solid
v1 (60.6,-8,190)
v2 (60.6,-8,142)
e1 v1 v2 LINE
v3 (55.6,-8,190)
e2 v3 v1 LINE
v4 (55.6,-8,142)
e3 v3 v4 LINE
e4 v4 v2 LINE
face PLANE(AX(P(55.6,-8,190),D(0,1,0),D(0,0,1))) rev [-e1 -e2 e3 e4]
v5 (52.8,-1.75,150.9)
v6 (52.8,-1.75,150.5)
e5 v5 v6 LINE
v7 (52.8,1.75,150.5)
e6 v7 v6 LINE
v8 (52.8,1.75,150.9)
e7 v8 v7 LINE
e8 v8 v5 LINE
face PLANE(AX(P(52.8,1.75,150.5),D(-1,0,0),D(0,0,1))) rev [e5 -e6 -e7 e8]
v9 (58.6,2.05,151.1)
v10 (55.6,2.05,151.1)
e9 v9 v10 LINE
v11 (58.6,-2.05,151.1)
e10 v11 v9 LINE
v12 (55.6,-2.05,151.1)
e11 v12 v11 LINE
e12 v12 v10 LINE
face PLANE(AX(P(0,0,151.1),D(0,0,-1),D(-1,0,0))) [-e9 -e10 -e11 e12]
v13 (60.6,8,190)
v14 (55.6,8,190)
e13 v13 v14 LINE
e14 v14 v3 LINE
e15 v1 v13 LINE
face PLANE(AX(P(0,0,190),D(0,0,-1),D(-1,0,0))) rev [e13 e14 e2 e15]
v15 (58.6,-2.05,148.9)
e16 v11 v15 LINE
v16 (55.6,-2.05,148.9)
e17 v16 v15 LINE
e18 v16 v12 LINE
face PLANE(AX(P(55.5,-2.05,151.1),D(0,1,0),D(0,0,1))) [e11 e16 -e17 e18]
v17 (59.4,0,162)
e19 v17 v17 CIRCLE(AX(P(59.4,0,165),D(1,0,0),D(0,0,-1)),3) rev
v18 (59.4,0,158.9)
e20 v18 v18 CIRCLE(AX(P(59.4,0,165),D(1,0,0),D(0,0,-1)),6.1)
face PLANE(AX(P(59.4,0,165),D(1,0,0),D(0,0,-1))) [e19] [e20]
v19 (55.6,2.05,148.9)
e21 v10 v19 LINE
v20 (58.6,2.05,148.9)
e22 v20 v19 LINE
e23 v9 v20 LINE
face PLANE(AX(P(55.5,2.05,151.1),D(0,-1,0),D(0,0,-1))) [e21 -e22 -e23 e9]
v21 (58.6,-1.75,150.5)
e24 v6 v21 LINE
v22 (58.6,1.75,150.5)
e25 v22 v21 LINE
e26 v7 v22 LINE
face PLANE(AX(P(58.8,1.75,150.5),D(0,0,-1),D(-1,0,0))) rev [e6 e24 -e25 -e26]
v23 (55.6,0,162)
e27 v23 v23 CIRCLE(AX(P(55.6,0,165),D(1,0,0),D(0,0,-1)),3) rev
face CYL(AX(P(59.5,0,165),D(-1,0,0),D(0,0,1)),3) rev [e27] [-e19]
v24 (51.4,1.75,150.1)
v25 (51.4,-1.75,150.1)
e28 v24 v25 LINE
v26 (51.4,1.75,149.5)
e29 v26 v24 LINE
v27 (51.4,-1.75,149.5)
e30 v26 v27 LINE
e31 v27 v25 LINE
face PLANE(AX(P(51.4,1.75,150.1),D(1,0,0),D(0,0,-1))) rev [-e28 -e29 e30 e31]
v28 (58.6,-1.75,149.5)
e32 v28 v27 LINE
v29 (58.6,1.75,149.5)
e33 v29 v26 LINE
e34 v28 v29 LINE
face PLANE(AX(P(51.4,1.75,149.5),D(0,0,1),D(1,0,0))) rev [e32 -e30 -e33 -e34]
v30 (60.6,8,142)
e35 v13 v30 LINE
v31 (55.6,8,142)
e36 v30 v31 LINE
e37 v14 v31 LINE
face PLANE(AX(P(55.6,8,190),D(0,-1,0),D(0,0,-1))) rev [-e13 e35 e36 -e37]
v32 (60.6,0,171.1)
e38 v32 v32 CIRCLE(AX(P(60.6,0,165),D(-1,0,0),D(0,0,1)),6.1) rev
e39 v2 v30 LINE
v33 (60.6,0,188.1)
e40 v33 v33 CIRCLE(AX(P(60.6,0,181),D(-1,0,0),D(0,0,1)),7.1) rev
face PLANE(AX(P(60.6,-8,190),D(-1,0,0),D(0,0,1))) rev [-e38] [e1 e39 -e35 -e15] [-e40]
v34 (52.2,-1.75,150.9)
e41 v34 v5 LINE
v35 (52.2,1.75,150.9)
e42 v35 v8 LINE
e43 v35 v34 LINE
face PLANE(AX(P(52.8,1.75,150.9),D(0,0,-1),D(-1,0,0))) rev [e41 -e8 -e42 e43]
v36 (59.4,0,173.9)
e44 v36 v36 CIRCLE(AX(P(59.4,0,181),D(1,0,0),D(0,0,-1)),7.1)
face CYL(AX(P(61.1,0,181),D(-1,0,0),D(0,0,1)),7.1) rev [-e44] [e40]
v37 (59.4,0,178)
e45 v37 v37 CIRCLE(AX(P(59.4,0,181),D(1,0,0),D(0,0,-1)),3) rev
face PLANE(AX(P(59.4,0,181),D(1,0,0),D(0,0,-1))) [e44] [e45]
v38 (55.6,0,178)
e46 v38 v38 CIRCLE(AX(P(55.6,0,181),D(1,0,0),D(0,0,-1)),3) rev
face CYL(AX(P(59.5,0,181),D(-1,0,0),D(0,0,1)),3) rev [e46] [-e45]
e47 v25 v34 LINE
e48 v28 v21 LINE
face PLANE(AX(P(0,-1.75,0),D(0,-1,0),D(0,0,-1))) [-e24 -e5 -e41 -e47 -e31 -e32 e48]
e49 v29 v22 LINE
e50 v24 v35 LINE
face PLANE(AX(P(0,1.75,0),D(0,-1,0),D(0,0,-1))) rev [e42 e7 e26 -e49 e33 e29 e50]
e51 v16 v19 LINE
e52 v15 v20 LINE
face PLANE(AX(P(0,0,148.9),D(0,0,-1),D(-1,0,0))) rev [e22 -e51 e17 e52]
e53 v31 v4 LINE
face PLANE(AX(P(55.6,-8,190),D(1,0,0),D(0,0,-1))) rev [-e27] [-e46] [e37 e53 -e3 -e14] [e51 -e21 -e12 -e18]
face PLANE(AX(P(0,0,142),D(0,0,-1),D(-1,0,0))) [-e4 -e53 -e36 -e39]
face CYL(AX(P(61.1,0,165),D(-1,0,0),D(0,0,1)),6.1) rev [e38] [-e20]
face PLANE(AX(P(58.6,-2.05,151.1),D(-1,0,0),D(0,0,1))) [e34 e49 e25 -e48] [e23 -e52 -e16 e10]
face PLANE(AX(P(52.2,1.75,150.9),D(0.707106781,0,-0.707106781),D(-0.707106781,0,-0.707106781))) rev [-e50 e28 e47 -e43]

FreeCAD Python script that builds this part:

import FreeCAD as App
import Part
import Sketcher
from FreeCAD import Vector
Q = App.Units.Quantity


def add_polygon(sketch, points):
    """Adds a closed chain of lines whose ends are joined by coincident constraints."""
    first, n = sketch.GeometryCount, len(points)
    for a, b in zip(points, points[1:] + points[:1]):
        sketch.addGeometry(Part.LineSegment(App.Vector(*a, 0), App.Vector(*b, 0)), False)
    for i in range(n):
        sketch.addConstraint(Sketcher.Constraint("Coincident", first + i, 2, first + (i + 1) % n, 1))

doc = App.newDocument("Part")
body = doc.addObject("PartDesign::Body", "Body")

# Sketch on XY plane
sketch1 = body.newObject("Sketcher::SketchObject", "Sketch")
sketch1.AttachmentSupport = (doc.getObject("XY_Plane"), [""])
sketch1.MapMode = "FlatFace"
sketch1.AttachmentOffset = App.Placement(Vector(0, 0, 142), App.Rotation())
add_polygon(sketch1, [(56, 8), (56, -8), (61, -8), (61, 8)])  # lines 0-3
sketch1.addConstraint(Sketcher.Constraint("Vertical", 0))
sketch1.addConstraint(Sketcher.Constraint("Horizontal", 1))
sketch1.addConstraint(Sketcher.Constraint("Vertical", 2))
sketch1.addConstraint(Sketcher.Constraint("Horizontal", 3))
sketch1.addConstraint(Sketcher.Constraint("DistanceX", 1, 1, 1, 2, 5.0))
sketch1.addConstraint(Sketcher.Constraint("DistanceY", 0, 2, 0, 1, 16.0))
sketch1.addConstraint(Sketcher.Constraint("DistanceY", 0, 2, -1, 1, 8.0))
sketch1.addConstraint(Sketcher.Constraint("DistanceX", -1, 1, 0, 2, 55.6))
pad1 = body.newObject("PartDesign::Pad", "Pad")
pad1.Profile = sketch1
pad1.Length = 48
body2 = doc.addObject("PartDesign::Body", "Body001")

# Sketch on XY plane
sketch2 = body2.newObject("Sketcher::SketchObject", "Sketch001")
sketch2.AttachmentSupport = (doc.getObject("XY_Plane001"), [""])
sketch2.MapMode = "FlatFace"
sketch2.AttachmentOffset = App.Placement(Vector(0, 0, 148.9), App.Rotation())
add_polygon(sketch2, [(55.5, 2), (55.5, -2), (58.6, -2), (58.6, 2)])  # lines 0-3
sketch2.addConstraint(Sketcher.Constraint("Vertical", 0))
sketch2.addConstraint(Sketcher.Constraint("Horizontal", 1))
sketch2.addConstraint(Sketcher.Constraint("Vertical", 2))
sketch2.addConstraint(Sketcher.Constraint("Horizontal", 3))
sketch2.addConstraint(Sketcher.Constraint("DistanceX", 1, 1, 1, 2, 3.1))
sketch2.addConstraint(Sketcher.Constraint("DistanceY", 0, 2, 0, 1, 4.1))
sketch2.addConstraint(Sketcher.Constraint("DistanceX", -1, 1, 0, 2, 55.5))
sketch2.addConstraint(Sketcher.Constraint("DistanceY", 0, 2, -1, 1, 2.05))
pad2 = body2.newObject("PartDesign::Pad", "Pad001")
pad2.Profile = sketch2
pad2.Length = 2.2
doc.recompute()

boolean = body.newObject("PartDesign::Boolean", "Boolean")
boolean.Type = "Cut"
boolean.addObjects([body2])

# Sketch on XZ plane
sketch3 = body.newObject("Sketcher::SketchObject", "Sketch002")
sketch3.AttachmentSupport = (doc.getObject("XZ_Plane"), [""])
sketch3.MapMode = "FlatFace"
sketch3.AttachmentOffset = App.Placement(Vector(0, 0, 1.75), App.Rotation())
add_polygon(sketch3, [(58.8, 150.5), (58.8, 149.5), (51.4, 149.5), (51.4, 150.1), (52.2, 150.9), (52.8, 150.9), (52.8, 150.5)])  # lines 0-6
sketch3.addConstraint(Sketcher.Constraint("Vertical", 0))
sketch3.addConstraint(Sketcher.Constraint("Horizontal", 1))
sketch3.addConstraint(Sketcher.Constraint("Vertical", 2))
sketch3.addConstraint(Sketcher.Constraint("Horizontal", 4))
sketch3.addConstraint(Sketcher.Constraint("Vertical", 5))
sketch3.addConstraint(Sketcher.Constraint("Horizontal", 6))
sketch3.addConstraint(Sketcher.Constraint("Equal", 4, 2))
sketch3.addConstraint(Sketcher.Constraint("DistanceX", 6, 1, 6, 2, 6.0))
sketch3.addConstraint(Sketcher.Constraint("DistanceY", 0, 2, 0, 1, 1.0))
sketch3.addConstraint(Sketcher.Constraint("Angle", 3, Q("45 deg")))
sketch3.addConstraint(Sketcher.Constraint("DistanceX", 1, 2, 1, 1, 7.4))
sketch3.addConstraint(Sketcher.Constraint("DistanceX", 4, 1, 4, 2, 0.6))
sketch3.addConstraint(Sketcher.Constraint("DistanceX", -1, 1, 0, 2, 58.8))
sketch3.addConstraint(Sketcher.Constraint("DistanceY", -1, 1, 0, 2, 149.5))
pad3 = body.newObject("PartDesign::Pad", "Pad002")
pad3.Profile = sketch3
pad3.Length = 3.5
pad3.Reversed = True
body3 = doc.addObject("PartDesign::Body", "Body002")

# Sketch on YZ plane
sketch4 = body3.newObject("Sketcher::SketchObject", "Sketch003")
sketch4.AttachmentSupport = (doc.getObject("YZ_Plane002"), [""])
sketch4.MapMode = "FlatFace"
sketch4.AttachmentOffset = App.Placement(Vector(0, 0, 59.4), App.Rotation())
sketch4.addGeometry(Part.Circle(Vector(0, 165, 0), Vector(0, 0, 1), 6), False)
sketch4.addConstraint(Sketcher.Constraint("PointOnObject", 0, 3, -2))
sketch4.addConstraint(Sketcher.Constraint("Diameter", 0, 12.2))
sketch4.addConstraint(Sketcher.Constraint("DistanceY", -1, 1, 0, 3, 165.0))
pad4 = body3.newObject("PartDesign::Pad", "Pad003")
pad4.Profile = sketch4
pad4.Length = 1.7
doc.recompute()

boolean2 = body.newObject("PartDesign::Boolean", "Boolean001")
boolean2.Type = "Cut"
boolean2.addObjects([body3])
body4 = doc.addObject("PartDesign::Body", "Body003")

# Sketch on YZ plane
sketch5 = body4.newObject("Sketcher::SketchObject", "Sketch004")
sketch5.AttachmentSupport = (doc.getObject("YZ_Plane003"), [""])
sketch5.MapMode = "FlatFace"
sketch5.AttachmentOffset = App.Placement(Vector(0, 0, 55.1), App.Rotation())
sketch5.addGeometry(Part.Circle(Vector(0, 165, 0), Vector(0, 0, 1), 3), False)
sketch5.addConstraint(Sketcher.Constraint("PointOnObject", 0, 3, -2))
sketch5.addConstraint(Sketcher.Constraint("Diameter", 0, 6.0))
sketch5.addConstraint(Sketcher.Constraint("DistanceY", -1, 1, 0, 3, 165.0))
pad5 = body4.newObject("PartDesign::Pad", "Pad004")
pad5.Profile = sketch5
pad5.Length = 4.4
doc.recompute()

boolean3 = body.newObject("PartDesign::Boolean", "Boolean002")
boolean3.Type = "Cut"
boolean3.addObjects([body4])
body5 = doc.addObject("PartDesign::Body", "Body004")

# Sketch on YZ plane
sketch6 = body5.newObject("Sketcher::SketchObject", "Sketch005")
sketch6.AttachmentSupport = (doc.getObject("YZ_Plane004"), [""])
sketch6.MapMode = "FlatFace"
sketch6.AttachmentOffset = App.Placement(Vector(0, 0, 59.4), App.Rotation())
sketch6.addGeometry(Part.Circle(Vector(0, 181, 0), Vector(0, 0, 1), 7), False)
sketch6.addConstraint(Sketcher.Constraint("PointOnObject", 0, 3, -2))
sketch6.addConstraint(Sketcher.Constraint("Diameter", 0, 14.2))
sketch6.addConstraint(Sketcher.Constraint("DistanceY", -1, 1, 0, 3, 181.0))
pad6 = body5.newObject("PartDesign::Pad", "Pad005")
pad6.Profile = sketch6
pad6.Length = 1.7
doc.recompute()

boolean4 = body.newObject("PartDesign::Boolean", "Boolean003")
boolean4.Type = "Cut"
boolean4.addObjects([body5])
body6 = doc.addObject("PartDesign::Body", "Body005")

# Sketch on YZ plane
sketch7 = body6.newObject("Sketcher::SketchObject", "Sketch006")
sketch7.AttachmentSupport = (doc.getObject("YZ_Plane005"), [""])
sketch7.MapMode = "FlatFace"
sketch7.AttachmentOffset = App.Placement(Vector(0, 0, 55.1), App.Rotation())
sketch7.addGeometry(Part.Circle(Vector(0, 181, 0), Vector(0, 0, 1), 3), False)
sketch7.addConstraint(Sketcher.Constraint("PointOnObject", 0, 3, -2))
sketch7.addConstraint(Sketcher.Constraint("Diameter", 0, 6.0))
sketch7.addConstraint(Sketcher.Constraint("DistanceY", -1, 1, 0, 3, 181.0))
pad7 = body6.newObject("PartDesign::Pad", "Pad006")
pad7.Profile = sketch7
pad7.Length = 4.4
doc.recompute()

boolean5 = body.newObject("PartDesign::Boolean", "Boolean004")
boolean5.Type = "Cut"
boolean5.addObjects([body6])

doc.recompute()
